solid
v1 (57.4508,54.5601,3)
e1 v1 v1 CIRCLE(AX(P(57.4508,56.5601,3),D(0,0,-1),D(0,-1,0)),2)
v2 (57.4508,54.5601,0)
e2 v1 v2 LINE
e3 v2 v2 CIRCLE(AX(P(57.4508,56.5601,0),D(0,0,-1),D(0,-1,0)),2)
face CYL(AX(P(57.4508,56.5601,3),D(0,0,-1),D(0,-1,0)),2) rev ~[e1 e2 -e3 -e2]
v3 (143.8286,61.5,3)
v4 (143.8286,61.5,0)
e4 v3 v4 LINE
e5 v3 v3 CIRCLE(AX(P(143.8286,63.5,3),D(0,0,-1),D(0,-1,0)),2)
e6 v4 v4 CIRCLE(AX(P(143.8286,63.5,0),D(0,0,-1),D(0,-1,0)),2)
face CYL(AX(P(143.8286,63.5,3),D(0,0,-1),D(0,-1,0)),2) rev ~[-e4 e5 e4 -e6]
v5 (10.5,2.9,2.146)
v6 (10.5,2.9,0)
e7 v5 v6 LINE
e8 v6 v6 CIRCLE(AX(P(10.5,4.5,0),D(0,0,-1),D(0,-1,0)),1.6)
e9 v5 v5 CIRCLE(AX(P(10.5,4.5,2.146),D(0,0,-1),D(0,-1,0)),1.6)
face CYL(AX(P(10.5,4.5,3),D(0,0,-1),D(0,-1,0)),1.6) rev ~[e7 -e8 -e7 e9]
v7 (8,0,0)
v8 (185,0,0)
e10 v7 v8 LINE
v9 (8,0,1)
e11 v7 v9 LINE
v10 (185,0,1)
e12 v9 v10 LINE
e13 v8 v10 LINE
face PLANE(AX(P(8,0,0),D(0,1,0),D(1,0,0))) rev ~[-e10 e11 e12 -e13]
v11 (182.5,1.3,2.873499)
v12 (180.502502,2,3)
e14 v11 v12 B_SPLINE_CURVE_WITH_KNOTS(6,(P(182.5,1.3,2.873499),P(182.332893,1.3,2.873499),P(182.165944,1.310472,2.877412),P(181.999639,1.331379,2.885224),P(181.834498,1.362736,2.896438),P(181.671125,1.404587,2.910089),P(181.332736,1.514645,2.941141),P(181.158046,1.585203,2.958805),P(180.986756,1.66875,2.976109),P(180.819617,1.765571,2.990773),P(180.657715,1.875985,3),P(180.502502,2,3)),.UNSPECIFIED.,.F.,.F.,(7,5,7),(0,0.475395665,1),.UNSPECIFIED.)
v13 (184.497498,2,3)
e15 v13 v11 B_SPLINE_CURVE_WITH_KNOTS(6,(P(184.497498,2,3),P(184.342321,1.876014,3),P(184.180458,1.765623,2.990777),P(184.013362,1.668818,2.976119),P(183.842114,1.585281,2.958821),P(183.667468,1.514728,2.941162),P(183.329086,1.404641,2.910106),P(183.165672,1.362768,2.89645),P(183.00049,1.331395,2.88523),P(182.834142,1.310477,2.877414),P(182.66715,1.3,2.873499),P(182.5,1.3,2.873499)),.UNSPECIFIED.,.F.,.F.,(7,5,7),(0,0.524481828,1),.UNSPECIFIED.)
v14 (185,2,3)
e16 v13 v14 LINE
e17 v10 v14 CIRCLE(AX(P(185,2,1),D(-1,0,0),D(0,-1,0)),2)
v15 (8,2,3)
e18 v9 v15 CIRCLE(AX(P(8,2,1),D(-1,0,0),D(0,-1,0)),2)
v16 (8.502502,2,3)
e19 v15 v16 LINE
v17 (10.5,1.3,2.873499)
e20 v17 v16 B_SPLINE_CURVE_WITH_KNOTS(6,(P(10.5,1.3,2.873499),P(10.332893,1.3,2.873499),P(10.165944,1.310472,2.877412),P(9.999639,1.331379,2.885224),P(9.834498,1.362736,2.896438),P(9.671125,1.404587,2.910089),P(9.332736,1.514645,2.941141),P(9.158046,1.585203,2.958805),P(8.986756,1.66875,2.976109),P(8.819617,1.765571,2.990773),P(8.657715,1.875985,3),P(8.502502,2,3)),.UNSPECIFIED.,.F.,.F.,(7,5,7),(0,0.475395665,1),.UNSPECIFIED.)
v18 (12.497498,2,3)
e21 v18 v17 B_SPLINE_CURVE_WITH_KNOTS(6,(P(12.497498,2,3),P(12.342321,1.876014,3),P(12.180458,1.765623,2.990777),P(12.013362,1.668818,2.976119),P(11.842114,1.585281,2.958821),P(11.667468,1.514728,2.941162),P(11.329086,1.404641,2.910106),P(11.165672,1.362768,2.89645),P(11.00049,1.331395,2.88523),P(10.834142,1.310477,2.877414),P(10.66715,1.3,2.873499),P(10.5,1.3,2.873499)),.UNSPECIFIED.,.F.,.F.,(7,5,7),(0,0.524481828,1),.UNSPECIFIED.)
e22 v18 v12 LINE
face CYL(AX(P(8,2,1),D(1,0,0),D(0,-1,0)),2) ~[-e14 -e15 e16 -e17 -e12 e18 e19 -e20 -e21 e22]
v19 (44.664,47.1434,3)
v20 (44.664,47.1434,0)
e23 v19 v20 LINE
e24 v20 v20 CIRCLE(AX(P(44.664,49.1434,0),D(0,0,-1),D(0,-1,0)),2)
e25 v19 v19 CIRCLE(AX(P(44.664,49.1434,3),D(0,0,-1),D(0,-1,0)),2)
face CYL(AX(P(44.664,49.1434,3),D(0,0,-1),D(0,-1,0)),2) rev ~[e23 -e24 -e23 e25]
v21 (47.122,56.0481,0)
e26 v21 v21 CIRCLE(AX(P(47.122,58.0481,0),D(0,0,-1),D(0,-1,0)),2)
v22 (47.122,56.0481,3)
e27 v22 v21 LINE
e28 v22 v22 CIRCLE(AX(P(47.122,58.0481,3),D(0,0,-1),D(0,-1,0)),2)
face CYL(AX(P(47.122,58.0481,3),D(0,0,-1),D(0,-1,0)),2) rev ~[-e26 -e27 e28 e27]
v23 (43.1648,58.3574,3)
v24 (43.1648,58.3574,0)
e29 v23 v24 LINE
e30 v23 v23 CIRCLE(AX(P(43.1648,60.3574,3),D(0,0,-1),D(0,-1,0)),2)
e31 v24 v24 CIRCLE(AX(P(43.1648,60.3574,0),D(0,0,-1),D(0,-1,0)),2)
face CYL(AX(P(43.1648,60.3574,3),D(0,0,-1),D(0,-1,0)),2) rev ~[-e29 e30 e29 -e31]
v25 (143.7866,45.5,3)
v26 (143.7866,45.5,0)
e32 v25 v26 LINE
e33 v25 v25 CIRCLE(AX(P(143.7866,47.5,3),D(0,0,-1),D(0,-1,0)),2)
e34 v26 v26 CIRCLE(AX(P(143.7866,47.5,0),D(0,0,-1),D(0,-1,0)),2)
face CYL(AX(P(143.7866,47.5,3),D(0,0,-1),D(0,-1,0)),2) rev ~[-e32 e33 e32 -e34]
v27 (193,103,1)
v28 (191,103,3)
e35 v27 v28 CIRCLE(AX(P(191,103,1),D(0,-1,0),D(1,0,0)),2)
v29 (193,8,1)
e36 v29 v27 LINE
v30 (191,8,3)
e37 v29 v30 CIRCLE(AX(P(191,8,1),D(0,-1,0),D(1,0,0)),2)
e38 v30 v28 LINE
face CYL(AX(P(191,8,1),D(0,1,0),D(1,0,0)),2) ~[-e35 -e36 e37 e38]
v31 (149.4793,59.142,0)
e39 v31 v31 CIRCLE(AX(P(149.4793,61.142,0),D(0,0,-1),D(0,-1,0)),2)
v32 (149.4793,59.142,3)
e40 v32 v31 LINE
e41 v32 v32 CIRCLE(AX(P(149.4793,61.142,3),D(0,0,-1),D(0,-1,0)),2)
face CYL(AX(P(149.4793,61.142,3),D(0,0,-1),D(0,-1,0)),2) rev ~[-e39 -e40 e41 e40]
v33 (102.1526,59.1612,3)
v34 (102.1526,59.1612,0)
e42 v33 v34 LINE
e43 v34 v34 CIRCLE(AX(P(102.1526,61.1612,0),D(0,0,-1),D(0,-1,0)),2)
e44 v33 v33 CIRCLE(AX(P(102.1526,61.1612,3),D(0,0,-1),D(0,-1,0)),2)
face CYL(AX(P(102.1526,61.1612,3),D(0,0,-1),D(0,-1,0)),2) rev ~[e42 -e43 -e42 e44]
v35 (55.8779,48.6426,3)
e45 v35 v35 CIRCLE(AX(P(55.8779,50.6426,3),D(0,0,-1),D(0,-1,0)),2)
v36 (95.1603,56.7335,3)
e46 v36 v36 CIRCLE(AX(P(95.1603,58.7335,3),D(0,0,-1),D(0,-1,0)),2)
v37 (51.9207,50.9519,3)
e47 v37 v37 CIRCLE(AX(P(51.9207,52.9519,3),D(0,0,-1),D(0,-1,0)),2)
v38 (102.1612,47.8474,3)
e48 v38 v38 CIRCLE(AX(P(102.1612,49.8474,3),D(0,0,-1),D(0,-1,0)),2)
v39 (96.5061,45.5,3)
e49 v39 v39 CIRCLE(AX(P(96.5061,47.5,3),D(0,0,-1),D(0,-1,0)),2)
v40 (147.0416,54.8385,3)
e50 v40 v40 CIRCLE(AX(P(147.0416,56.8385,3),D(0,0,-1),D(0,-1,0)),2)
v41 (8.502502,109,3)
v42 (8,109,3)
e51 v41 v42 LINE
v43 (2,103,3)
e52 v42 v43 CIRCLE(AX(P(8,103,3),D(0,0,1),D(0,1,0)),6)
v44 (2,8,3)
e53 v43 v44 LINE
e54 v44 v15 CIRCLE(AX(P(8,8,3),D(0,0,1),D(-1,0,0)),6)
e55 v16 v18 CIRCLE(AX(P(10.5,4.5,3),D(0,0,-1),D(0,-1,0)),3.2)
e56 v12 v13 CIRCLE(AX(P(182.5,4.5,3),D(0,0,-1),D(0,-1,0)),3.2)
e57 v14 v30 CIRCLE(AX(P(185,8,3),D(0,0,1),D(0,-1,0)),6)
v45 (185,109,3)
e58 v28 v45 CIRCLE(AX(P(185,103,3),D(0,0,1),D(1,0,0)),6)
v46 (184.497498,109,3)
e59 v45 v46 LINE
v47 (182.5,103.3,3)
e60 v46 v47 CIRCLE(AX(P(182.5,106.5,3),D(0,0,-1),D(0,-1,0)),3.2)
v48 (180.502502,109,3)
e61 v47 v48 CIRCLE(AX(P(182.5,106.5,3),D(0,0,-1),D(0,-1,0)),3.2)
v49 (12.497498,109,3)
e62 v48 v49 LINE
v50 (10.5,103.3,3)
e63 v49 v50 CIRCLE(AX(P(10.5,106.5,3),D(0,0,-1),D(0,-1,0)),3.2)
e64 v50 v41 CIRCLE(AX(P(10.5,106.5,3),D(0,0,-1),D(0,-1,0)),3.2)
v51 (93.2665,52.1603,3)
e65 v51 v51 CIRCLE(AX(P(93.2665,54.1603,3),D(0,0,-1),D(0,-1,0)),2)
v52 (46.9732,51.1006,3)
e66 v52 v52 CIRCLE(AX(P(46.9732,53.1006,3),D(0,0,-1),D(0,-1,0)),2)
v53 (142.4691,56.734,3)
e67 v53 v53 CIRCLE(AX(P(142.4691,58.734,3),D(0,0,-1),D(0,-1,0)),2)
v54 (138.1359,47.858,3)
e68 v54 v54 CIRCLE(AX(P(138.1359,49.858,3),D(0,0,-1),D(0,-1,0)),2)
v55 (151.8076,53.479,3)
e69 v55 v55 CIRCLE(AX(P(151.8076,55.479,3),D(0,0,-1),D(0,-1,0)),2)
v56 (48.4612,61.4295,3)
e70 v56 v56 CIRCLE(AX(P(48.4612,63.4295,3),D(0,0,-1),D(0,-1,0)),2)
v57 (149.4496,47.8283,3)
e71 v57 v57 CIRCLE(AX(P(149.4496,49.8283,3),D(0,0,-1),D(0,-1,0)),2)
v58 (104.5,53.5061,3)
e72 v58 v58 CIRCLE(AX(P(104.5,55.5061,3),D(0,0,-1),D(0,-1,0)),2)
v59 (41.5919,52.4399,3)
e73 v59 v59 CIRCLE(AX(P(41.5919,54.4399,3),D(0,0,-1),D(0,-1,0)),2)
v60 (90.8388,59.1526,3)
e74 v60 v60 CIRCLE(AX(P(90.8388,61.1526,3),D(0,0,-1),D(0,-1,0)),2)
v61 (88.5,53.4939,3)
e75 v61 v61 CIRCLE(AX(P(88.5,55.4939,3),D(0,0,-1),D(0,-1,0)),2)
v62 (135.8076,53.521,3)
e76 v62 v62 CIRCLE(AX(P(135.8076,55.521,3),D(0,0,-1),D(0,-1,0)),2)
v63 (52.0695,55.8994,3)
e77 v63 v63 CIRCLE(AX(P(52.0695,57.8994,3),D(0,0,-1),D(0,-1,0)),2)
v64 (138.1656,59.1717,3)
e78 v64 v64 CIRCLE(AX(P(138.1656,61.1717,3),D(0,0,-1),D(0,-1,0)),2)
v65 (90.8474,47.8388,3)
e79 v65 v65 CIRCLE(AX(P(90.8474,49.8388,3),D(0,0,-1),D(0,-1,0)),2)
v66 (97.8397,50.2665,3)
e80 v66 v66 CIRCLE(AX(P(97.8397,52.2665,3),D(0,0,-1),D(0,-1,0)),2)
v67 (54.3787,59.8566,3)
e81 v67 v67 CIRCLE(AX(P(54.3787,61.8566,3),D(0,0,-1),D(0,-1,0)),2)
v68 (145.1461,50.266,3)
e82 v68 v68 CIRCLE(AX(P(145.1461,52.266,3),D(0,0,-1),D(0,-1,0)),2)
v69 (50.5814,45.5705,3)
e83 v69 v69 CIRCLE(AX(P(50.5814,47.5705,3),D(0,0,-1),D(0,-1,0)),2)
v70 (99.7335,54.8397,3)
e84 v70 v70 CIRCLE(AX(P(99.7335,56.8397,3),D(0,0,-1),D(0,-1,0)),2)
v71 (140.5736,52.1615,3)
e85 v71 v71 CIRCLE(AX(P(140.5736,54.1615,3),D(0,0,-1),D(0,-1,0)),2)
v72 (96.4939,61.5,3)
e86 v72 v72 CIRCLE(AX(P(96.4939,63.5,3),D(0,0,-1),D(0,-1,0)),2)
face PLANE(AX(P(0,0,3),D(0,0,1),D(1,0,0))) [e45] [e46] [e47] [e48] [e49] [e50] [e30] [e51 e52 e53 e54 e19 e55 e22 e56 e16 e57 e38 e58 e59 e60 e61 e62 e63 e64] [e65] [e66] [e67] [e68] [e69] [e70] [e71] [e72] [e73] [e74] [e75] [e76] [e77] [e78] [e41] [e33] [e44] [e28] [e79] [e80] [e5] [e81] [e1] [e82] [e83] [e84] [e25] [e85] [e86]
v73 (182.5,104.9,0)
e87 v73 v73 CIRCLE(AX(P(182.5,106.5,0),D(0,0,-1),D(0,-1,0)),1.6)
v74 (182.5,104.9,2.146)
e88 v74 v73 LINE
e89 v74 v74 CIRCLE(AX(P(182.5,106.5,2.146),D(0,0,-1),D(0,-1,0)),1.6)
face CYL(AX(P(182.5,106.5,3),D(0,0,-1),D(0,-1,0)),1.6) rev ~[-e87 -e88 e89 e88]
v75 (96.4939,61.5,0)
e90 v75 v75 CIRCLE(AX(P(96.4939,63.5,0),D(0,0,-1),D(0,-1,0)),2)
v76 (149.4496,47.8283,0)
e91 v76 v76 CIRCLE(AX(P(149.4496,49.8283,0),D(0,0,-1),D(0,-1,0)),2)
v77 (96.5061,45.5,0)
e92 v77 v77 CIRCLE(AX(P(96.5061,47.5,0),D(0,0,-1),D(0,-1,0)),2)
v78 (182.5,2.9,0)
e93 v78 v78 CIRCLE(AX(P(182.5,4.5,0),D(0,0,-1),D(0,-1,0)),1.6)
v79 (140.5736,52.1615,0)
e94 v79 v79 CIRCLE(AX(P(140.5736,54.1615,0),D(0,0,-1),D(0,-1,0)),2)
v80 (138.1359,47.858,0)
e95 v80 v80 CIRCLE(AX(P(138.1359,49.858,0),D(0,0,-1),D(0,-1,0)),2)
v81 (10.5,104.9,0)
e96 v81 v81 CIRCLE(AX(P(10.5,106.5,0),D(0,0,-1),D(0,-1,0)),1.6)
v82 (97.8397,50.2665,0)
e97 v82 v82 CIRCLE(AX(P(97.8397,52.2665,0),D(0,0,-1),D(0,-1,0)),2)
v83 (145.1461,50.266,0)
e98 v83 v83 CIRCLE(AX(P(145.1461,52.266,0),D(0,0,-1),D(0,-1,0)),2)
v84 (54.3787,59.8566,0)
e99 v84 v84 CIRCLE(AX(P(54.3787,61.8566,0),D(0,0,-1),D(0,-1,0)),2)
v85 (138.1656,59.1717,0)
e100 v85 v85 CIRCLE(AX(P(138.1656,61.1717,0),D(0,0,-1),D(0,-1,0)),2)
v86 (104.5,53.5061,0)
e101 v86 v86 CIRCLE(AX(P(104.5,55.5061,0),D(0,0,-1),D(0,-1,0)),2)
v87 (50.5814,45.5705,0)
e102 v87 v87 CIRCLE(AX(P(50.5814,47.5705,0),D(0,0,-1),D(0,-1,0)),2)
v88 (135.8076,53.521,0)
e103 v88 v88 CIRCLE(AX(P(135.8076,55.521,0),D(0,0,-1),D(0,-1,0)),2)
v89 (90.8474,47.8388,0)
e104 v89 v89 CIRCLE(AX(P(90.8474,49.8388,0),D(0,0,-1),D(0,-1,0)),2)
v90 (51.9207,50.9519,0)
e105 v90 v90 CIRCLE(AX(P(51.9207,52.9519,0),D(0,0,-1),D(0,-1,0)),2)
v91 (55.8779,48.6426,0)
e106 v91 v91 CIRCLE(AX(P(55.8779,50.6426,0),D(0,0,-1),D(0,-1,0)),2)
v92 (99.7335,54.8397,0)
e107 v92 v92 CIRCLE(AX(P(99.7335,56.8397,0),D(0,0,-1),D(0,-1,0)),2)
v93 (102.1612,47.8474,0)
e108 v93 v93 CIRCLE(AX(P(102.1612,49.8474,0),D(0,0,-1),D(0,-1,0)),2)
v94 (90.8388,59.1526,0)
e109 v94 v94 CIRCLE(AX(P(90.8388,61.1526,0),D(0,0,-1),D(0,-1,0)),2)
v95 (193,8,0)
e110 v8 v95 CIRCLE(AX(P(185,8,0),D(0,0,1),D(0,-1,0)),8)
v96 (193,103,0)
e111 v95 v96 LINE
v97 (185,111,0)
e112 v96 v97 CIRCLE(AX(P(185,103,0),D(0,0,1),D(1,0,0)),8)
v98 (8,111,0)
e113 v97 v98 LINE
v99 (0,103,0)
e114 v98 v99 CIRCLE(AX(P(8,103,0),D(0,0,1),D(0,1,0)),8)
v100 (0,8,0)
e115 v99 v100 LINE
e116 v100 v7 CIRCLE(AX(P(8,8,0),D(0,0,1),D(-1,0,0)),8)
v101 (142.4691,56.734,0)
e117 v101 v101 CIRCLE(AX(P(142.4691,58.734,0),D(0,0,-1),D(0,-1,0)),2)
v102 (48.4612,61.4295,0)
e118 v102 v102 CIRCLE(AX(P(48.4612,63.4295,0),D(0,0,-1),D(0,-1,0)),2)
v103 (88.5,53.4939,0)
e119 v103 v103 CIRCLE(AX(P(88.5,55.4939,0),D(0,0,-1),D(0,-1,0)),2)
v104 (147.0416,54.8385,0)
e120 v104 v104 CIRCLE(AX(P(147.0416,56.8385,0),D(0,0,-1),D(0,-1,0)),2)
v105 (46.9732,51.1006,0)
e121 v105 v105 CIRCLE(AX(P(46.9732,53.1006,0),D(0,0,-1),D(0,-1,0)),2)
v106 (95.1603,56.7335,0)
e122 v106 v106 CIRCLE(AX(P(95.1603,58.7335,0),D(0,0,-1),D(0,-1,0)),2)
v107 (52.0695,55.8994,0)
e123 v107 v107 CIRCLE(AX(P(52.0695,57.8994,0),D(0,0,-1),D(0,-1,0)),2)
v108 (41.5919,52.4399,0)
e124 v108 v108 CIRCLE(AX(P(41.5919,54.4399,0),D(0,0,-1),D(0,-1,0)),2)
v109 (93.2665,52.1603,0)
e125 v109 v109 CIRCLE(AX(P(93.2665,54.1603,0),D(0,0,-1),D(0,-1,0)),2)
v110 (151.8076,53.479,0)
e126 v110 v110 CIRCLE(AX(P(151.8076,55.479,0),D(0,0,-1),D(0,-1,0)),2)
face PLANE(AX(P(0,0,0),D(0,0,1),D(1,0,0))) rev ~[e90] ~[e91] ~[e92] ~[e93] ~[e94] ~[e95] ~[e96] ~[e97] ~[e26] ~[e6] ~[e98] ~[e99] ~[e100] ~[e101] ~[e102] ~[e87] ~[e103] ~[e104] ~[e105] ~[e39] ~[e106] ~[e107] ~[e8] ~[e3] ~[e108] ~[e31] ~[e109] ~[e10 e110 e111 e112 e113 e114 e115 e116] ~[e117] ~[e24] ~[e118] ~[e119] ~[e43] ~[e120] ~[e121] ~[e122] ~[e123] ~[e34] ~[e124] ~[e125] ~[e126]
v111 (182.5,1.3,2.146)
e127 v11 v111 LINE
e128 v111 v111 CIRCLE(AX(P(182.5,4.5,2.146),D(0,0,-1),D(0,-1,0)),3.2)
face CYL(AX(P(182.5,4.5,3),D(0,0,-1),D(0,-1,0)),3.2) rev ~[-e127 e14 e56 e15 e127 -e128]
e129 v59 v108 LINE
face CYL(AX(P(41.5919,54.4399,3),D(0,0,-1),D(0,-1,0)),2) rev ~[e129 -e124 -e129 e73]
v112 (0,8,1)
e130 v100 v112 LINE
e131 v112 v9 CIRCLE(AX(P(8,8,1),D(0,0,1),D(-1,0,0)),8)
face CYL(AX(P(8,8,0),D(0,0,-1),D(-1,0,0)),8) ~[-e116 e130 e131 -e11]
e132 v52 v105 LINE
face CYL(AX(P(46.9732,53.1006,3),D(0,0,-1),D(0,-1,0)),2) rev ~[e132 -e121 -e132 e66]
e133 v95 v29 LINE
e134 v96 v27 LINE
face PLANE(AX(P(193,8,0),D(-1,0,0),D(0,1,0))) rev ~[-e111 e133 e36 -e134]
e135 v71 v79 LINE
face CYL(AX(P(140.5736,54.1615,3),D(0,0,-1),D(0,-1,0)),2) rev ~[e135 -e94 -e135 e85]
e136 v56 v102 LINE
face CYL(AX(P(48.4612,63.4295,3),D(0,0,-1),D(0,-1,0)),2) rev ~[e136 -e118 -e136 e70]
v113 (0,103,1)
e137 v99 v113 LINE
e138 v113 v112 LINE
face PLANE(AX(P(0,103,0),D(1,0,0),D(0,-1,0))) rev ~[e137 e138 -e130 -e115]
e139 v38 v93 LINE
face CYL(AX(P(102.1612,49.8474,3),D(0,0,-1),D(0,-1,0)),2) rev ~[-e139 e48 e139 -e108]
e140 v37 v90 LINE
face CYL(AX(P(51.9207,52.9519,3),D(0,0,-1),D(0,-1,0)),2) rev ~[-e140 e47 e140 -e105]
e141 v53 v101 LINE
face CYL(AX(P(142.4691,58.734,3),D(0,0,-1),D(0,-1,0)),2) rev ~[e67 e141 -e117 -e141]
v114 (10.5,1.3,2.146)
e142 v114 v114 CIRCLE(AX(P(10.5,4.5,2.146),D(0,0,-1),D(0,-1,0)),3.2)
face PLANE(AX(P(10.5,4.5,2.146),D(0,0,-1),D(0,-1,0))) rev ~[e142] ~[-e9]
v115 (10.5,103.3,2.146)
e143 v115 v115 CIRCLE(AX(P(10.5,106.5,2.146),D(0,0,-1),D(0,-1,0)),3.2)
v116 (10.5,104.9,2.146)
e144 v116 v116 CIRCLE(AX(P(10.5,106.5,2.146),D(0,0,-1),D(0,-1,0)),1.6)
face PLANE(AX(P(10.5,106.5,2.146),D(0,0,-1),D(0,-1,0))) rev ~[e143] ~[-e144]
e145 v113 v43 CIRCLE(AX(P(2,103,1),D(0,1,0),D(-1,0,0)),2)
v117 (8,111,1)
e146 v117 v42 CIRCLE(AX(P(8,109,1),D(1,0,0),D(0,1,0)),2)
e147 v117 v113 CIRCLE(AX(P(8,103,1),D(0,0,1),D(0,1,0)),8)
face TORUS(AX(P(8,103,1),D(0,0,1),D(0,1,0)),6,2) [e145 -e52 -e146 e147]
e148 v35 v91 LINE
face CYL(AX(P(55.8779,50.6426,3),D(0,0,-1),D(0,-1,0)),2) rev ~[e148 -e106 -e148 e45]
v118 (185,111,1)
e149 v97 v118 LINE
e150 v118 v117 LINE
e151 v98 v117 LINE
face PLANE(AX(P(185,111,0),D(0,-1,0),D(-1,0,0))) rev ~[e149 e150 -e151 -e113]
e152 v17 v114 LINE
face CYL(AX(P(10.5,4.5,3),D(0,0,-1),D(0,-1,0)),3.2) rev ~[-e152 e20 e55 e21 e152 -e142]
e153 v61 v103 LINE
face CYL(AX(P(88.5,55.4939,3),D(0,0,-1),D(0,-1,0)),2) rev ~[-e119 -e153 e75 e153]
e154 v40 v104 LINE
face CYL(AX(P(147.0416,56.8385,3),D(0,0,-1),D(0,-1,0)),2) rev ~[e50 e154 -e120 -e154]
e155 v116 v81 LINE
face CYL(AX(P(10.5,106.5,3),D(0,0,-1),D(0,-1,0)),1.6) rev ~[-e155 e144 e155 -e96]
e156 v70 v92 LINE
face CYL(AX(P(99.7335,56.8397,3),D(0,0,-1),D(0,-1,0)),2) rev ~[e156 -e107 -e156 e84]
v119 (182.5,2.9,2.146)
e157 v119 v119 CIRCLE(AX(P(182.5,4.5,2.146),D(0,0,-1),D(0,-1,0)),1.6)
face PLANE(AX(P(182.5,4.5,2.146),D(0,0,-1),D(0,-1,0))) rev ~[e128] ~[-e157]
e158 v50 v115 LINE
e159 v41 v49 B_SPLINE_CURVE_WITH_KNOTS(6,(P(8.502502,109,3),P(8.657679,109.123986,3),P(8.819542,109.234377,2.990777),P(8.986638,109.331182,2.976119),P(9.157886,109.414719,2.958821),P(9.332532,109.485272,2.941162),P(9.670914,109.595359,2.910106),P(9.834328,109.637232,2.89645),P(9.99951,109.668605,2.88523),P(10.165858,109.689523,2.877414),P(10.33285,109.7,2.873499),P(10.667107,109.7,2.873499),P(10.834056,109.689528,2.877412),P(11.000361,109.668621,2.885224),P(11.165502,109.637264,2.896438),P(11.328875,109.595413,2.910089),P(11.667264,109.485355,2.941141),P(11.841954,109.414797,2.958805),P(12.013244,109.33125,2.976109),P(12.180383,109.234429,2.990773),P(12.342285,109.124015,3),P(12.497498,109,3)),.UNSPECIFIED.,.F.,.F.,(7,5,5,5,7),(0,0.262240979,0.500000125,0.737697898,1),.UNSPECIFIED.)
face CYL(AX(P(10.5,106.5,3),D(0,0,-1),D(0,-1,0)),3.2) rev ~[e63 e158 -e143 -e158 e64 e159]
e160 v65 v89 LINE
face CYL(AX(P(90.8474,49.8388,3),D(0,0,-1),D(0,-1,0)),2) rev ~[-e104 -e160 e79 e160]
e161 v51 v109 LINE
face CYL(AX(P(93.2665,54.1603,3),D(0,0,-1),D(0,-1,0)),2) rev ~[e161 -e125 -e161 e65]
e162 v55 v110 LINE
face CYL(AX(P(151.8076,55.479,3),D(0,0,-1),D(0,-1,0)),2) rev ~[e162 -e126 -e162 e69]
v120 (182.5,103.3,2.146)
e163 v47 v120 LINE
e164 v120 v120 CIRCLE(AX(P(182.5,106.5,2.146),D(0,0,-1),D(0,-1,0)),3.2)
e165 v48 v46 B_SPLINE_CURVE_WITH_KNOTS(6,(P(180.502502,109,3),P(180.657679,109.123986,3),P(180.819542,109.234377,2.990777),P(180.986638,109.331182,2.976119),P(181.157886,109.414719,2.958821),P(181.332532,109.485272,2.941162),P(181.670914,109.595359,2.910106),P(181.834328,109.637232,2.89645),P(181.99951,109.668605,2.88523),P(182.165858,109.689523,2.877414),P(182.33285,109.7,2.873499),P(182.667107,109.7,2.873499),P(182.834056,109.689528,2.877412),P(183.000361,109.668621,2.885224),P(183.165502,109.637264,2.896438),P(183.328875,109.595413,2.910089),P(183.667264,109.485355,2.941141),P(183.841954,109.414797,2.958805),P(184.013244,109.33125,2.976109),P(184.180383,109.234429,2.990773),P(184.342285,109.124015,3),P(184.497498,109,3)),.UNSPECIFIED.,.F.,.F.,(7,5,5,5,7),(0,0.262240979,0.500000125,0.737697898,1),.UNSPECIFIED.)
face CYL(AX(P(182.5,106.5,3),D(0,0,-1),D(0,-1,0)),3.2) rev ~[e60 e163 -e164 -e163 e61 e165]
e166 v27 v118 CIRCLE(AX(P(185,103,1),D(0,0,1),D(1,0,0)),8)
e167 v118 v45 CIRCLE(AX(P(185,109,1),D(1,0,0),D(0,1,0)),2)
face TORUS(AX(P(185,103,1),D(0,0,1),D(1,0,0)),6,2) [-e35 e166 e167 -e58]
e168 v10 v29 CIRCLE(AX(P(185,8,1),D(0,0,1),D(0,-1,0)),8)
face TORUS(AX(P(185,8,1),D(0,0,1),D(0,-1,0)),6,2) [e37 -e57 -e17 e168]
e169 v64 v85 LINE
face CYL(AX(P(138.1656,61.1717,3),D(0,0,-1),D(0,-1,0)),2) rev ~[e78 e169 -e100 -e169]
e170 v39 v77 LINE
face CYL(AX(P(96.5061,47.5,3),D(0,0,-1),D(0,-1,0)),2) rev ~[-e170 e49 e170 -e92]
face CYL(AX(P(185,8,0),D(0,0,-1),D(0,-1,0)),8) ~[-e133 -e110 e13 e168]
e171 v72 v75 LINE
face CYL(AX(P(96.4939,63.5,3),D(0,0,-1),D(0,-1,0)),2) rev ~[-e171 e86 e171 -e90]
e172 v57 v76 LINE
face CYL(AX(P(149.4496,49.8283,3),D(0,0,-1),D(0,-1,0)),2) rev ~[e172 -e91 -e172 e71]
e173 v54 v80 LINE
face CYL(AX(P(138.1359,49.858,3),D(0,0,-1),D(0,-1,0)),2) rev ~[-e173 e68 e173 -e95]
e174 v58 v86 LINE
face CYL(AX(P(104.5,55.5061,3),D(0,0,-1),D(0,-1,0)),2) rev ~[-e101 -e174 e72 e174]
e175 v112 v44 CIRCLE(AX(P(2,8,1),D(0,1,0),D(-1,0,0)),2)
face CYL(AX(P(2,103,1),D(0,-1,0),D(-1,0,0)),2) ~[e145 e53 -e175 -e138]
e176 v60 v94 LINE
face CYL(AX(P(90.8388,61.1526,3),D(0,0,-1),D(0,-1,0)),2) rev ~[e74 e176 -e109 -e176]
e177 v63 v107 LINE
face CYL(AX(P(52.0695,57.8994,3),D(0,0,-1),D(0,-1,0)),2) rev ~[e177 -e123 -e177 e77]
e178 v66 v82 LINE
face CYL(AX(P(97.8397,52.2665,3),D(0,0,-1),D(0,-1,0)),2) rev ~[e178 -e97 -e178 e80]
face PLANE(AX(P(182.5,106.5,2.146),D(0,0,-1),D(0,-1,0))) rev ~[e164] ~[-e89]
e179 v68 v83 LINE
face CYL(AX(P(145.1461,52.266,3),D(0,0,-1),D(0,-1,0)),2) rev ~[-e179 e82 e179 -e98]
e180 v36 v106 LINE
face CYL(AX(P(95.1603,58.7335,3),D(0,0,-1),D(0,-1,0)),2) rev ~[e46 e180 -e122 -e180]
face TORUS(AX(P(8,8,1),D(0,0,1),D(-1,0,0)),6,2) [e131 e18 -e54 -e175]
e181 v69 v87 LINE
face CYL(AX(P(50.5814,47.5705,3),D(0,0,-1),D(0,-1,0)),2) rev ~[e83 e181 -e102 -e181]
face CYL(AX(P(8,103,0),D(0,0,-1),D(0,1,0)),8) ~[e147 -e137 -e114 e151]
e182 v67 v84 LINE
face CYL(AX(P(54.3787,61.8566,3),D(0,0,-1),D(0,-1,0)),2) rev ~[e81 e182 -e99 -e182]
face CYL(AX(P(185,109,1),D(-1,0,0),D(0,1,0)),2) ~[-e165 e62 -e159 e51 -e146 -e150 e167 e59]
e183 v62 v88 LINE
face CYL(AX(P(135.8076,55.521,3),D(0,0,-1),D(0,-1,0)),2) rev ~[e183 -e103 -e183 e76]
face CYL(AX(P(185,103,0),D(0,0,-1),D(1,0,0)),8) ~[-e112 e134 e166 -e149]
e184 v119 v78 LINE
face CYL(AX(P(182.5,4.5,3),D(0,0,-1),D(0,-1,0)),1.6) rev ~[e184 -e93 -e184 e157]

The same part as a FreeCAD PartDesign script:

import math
import FreeCAD as App
import Part
import Sketcher
Q = App.Units.Quantity


def edges_at(feature, points):
    """Names of the edges that pass closest to the given points."""
    edges = feature.Shape.Edges
    near = lambda p: min(range(len(edges)), key=lambda i: edges[i].distToShape(Part.Vertex(*p))[0])
    return sorted({f"Edge{near(p) + 1}" for p in points})

doc = App.newDocument("Part")
body = doc.addObject("PartDesign::Body", "Body")

sketch1 = body.newObject("Sketcher::SketchObject", "Sketch")
sketch1.AttachmentSupport = (doc.getObject("XY_Plane"), [""])
sketch1.MapMode = "FlatFace"
sketch1.addGeometry(Part.ArcOfCircle(Part.Circle(App.Vector(8, 8, 0), App.Vector(0, 0, 1), 8), math.radians(180), math.radians(270)), False)
sketch1.addGeometry(Part.LineSegment(App.Vector(8, 0, 0), App.Vector(185, 0, 0)), False)
sketch1.addGeometry(Part.ArcOfCircle(Part.Circle(App.Vector(185, 8, 0), App.Vector(0, 0, 1), 8), math.radians(-90), math.radians(0)), False)
sketch1.addGeometry(Part.LineSegment(App.Vector(193, 8, 0), App.Vector(193, 103, 0)), False)
sketch1.addGeometry(Part.ArcOfCircle(Part.Circle(App.Vector(185, 103, 0), App.Vector(0, 0, 1), 8), math.radians(0), math.radians(90)), False)
sketch1.addGeometry(Part.LineSegment(App.Vector(185, 111, 0), App.Vector(8, 111, 0)), False)
sketch1.addGeometry(Part.ArcOfCircle(Part.Circle(App.Vector(8, 103, 0), App.Vector(0, 0, 1), 8), math.radians(90), math.radians(180)), False)
sketch1.addGeometry(Part.LineSegment(App.Vector(0, 103, 0), App.Vector(0, 8, 0)), False)
sketch1.addConstraint(Sketcher.Constraint("Tangent", 0, 2, 1, 1))
sketch1.addConstraint(Sketcher.Constraint("Tangent", 1, 2, 2, 1))
sketch1.addConstraint(Sketcher.Constraint("Tangent", 2, 2, 3, 1))
sketch1.addConstraint(Sketcher.Constraint("Tangent", 3, 2, 4, 1))
sketch1.addConstraint(Sketcher.Constraint("Tangent", 4, 2, 5, 1))
sketch1.addConstraint(Sketcher.Constraint("Tangent", 5, 2, 6, 1))
sketch1.addConstraint(Sketcher.Constraint("Tangent", 6, 2, 7, 1))
sketch1.addConstraint(Sketcher.Constraint("Tangent", 7, 2, 0, 1))
sketch1.addConstraint(Sketcher.Constraint("Horizontal", 1))
sketch1.addConstraint(Sketcher.Constraint("Vertical", 3))
sketch1.addConstraint(Sketcher.Constraint("Horizontal", 5))
sketch1.addConstraint(Sketcher.Constraint("Vertical", 7))
sketch1.addConstraint(Sketcher.Constraint("Equal", 0, 2))
sketch1.addConstraint(Sketcher.Constraint("Equal", 2, 4))
sketch1.addConstraint(Sketcher.Constraint("Equal", 4, 6))
sketch1.addConstraint(Sketcher.Constraint("PointOnObject", 0, 2, -1))
sketch1.addConstraint(Sketcher.Constraint("PointOnObject", 6, 2, -2))
sketch1.addConstraint(Sketcher.Constraint("Radius", 0, Q("8 mm")))
sketch1.addConstraint(Sketcher.Constraint("DistanceX", -1, 1, 2, 2, Q("193 mm")))
sketch1.addConstraint(Sketcher.Constraint("DistanceY", -1, 1, 4, 2, Q("111 mm")))
pad1 = body.newObject("PartDesign::Pad", "Pad")
pad1.Profile = sketch1
pad1.Length = 3
doc.recompute()

fillet = body.newObject("PartDesign::Fillet", "Fillet")
fillet.Base = (pad1, edges_at(pad1, [
    (193, 55.5, 3),
    (190.657, 108.657, 3),
    (96.5, 111, 3),
    (2.343, 108.657, 3),
    (0, 55.5, 3),
    (2.343, 2.343, 3),
    (96.5, 0, 3),
    (190.657, 2.343, 3),
]))
fillet.Radius = 2

sketch2 = body.newObject("Sketcher::SketchObject", "Sketch001")
sketch2.AttachmentSupport = (doc.getObject("XY_Plane"), [""])
sketch2.MapMode = "FlatFace"
sketch2.AttachmentOffset = App.Placement(App.Vector(0, 0, 3), App.Rotation())
sketch2.addGeometry(Part.Circle(App.Vector(10.5, 4.5, 0), App.Vector(0, 0, 1), 1.6), False)
sketch2.addGeometry(Part.Circle(App.Vector(10.5, 106.5, 0), App.Vector(0, 0, 1), 1.6), False)
sketch2.addGeometry(Part.Circle(App.Vector(182.5, 106.5, 0), App.Vector(0, 0, 1), 1.6), False)
sketch2.addGeometry(Part.Circle(App.Vector(182.5, 4.5, 0), App.Vector(0, 0, 1), 1.6), False)
sketch2.addConstraint(Sketcher.Constraint("Equal", 0, 1))
sketch2.addConstraint(Sketcher.Constraint("Equal", 1, 2))
sketch2.addConstraint(Sketcher.Constraint("Equal", 2, 3))
sketch2.addConstraint(Sketcher.Constraint("Horizontal", 1, 3, 2, 3))
sketch2.addConstraint(Sketcher.Constraint("Horizontal", 0, 3, 3, 3))
sketch2.addConstraint(Sketcher.Constraint("Vertical", 0, 3, 1, 3))
sketch2.addConstraint(Sketcher.Constraint("Vertical", 2, 3, 3, 3))
sketch2.addConstraint(Sketcher.Constraint("Diameter", 0, Q("3.2 mm")))
sketch2.addConstraint(Sketcher.Constraint("DistanceY", 0, 3, 1, 3, Q("102 mm")))
sketch2.addConstraint(Sketcher.Constraint("DistanceX", 1, 3, 2, 3, Q("172 mm")))
sketch2.addConstraint(Sketcher.Constraint("DistanceX", -1, 1, 0, 3, Q("10.5 mm")))
sketch2.addConstraint(Sketcher.Constraint("DistanceY", -1, 1, 0, 3, Q("4.5 mm")))
doc.recompute()
hole = body.newObject("PartDesign::Hole", "Hole")
hole.Profile = sketch2
hole.ThreadType = "None"
hole.Diameter = 3.2
hole.DepthType = "Dimension"
hole.Depth = 7
hole.DrillPoint = "Flat"

sketch3 = body.newObject("Sketcher::SketchObject", "Sketch002")
sketch3.AttachmentSupport = (doc.getObject("XY_Plane"), [""])
sketch3.MapMode = "FlatFace"
sketch3.AttachmentOffset = App.Placement(App.Vector(0, 0, 3), App.Rotation())
sketch3.addGeometry(Part.Circle(App.Vector(182.5, 4.5, 0), App.Vector(0, 0, 1), 3.2), False)
sketch3.addGeometry(Part.Circle(App.Vector(10.5, 4.5, 0), App.Vector(0, 0, 1), 3.2), False)
sketch3.addGeometry(Part.Circle(App.Vector(182.5, 106.5, 0), App.Vector(0, 0, 1), 3.2), False)
sketch3.addGeometry(Part.Circle(App.Vector(10.5, 106.5, 0), App.Vector(0, 0, 1), 3.2), False)
sketch3.addConstraint(Sketcher.Constraint("Equal", 0, 1))
sketch3.addConstraint(Sketcher.Constraint("Equal", 1, 2))
sketch3.addConstraint(Sketcher.Constraint("Equal", 2, 3))
sketch3.addConstraint(Sketcher.Constraint("Horizontal", 0, 3, 1, 3))
sketch3.addConstraint(Sketcher.Constraint("Horizontal", 2, 3, 3, 3))
sketch3.addConstraint(Sketcher.Constraint("Vertical", 0, 3, 2, 3))
sketch3.addConstraint(Sketcher.Constraint("Vertical", 1, 3, 3, 3))
sketch3.addConstraint(Sketcher.Constraint("Diameter", 0, Q("6.4 mm")))
sketch3.addConstraint(Sketcher.Constraint("DistanceX", 1, 3, 0, 3, Q("172 mm")))
sketch3.addConstraint(Sketcher.Constraint("DistanceY", 0, 3, 2, 3, Q("102 mm")))
sketch3.addConstraint(Sketcher.Constraint("DistanceX", -1, 1, 0, 3, Q("182.5 mm")))
sketch3.addConstraint(Sketcher.Constraint("DistanceY", -1, 1, 0, 3, Q("4.5 mm")))
doc.recompute()
hole2 = body.newObject("PartDesign::Hole", "Hole001")
hole2.Profile = sketch3
hole2.ThreadType = "None"
hole2.Diameter = 6.4
hole2.DepthType = "Dimension"
hole2.Depth = 0.854
hole2.DrillPoint = "Flat"

sketch4 = body.newObject("Sketcher::SketchObject", "Sketch003")
sketch4.AttachmentSupport = (doc.getObject("XY_Plane"), [""])
sketch4.MapMode = "FlatFace"
sketch4.AttachmentOffset = App.Placement(App.Vector(0, 0, 3), App.Rotation())
sketch4.addGeometry(Part.Circle(App.Vector(52.1, 57.9, 0), App.Vector(0, 0, 1), 2), False)
sketch4.addGeometry(Part.Circle(App.Vector(47.1, 58, 0), App.Vector(0, 0, 1), 2), False)
sketch4.addGeometry(Part.Circle(App.Vector(48.5, 63.4, 0), App.Vector(0, 0, 1), 2), False)
sketch4.addGeometry(Part.Circle(App.Vector(43.2, 60.4, 0), App.Vector(0, 0, 1), 2), False)
sketch4.addGeometry(Part.Circle(App.Vector(41.6, 54.4, 0), App.Vector(0, 0, 1), 2), False)
sketch4.addGeometry(Part.Circle(App.Vector(47, 53.1, 0), App.Vector(0, 0, 1), 2), False)
sketch4.addGeometry(Part.Circle(App.Vector(44.7, 49.1, 0), App.Vector(0, 0, 1), 2), False)
sketch4.addGeometry(Part.Circle(App.Vector(55.9, 50.6, 0), App.Vector(0, 0, 1), 2), False)
sketch4.addGeometry(Part.Circle(App.Vector(51.9, 53, 0), App.Vector(0, 0, 1), 2), False)
sketch4.addGeometry(Part.Circle(App.Vector(50.6, 47.6, 0), App.Vector(0, 0, 1), 2), False)
sketch4.addGeometry(Part.Circle(App.Vector(57.5, 56.6, 0), App.Vector(0, 0, 1), 2), False)
sketch4.addGeometry(Part.Circle(App.Vector(54.4, 61.9, 0), App.Vector(0, 0, 1), 2), False)
sketch4.addGeometry(Part.Circle(App.Vector(96.5, 63.5, 0), App.Vector(0, 0, 1), 2), False)
sketch4.addGeometry(Part.Circle(App.Vector(90.8, 61.2, 0), App.Vector(0, 0, 1), 2), False)
sketch4.addGeometry(Part.Circle(App.Vector(88.5, 55.5, 0), App.Vector(0, 0, 1), 2), False)
sketch4.addGeometry(Part.Circle(App.Vector(95.2, 58.7, 0), App.Vector(0, 0, 1), 2), False)
sketch4.addGeometry(Part.Circle(App.Vector(93.3, 54.2, 0), App.Vector(0, 0, 1), 2), False)
sketch4.addGeometry(Part.Circle(App.Vector(97.8, 52.3, 0), App.Vector(0, 0, 1), 2), False)
sketch4.addGeometry(Part.Circle(App.Vector(90.8, 49.8, 0), App.Vector(0, 0, 1), 2), False)
sketch4.addGeometry(Part.Circle(App.Vector(96.5, 47.5, 0), App.Vector(0, 0, 1), 2), False)
sketch4.addGeometry(Part.Circle(App.Vector(102.2, 49.8, 0), App.Vector(0, 0, 1), 2), False)
sketch4.addGeometry(Part.Circle(App.Vector(102.2, 61.2, 0), App.Vector(0, 0, 1), 2), False)
sketch4.addGeometry(Part.Circle(App.Vector(104.5, 55.5, 0), App.Vector(0, 0, 1), 2), False)
sketch4.addGeometry(Part.Circle(App.Vector(99.7, 56.8, 0), App.Vector(0, 0, 1), 2), False)
sketch4.addGeometry(Part.Circle(App.Vector(142.5, 58.7, 0), App.Vector(0, 0, 1), 2), False)
sketch4.addGeometry(Part.Circle(App.Vector(138.2, 61.2, 0), App.Vector(0, 0, 1), 2), False)
sketch4.addGeometry(Part.Circle(App.Vector(143.8, 63.5, 0), App.Vector(0, 0, 1), 2), False)
sketch4.addGeometry(Part.Circle(App.Vector(149.5, 61.1, 0), App.Vector(0, 0, 1), 2), False)
sketch4.addGeometry(Part.Circle(App.Vector(147, 56.8, 0), App.Vector(0, 0, 1), 2), False)
sketch4.addGeometry(Part.Circle(App.Vector(149.4, 49.8, 0), App.Vector(0, 0, 1), 2), False)
sketch4.addGeometry(Part.Circle(App.Vector(145.1, 52.3, 0), App.Vector(0, 0, 1), 2), False)
sketch4.addGeometry(Part.Circle(App.Vector(151.8, 55.5, 0), App.Vector(0, 0, 1), 2), False)
sketch4.addGeometry(Part.Circle(App.Vector(143.8, 47.5, 0), App.Vector(0, 0, 1), 2), False)
sketch4.addGeometry(Part.Circle(App.Vector(138.1, 49.9, 0), App.Vector(0, 0, 1), 2), False)
sketch4.addGeometry(Part.Circle(App.Vector(140.6, 54.2, 0), App.Vector(0, 0, 1), 2), False)
sketch4.addGeometry(Part.Circle(App.Vector(135.8, 55.5, 0), App.Vector(0, 0, 1), 2), False)
sketch4.addConstraint(Sketcher.Constraint("Equal", 0, 1))
sketch4.addConstraint(Sketcher.Constraint("Equal", 1, 2))
sketch4.addConstraint(Sketcher.Constraint("Equal", 2, 3))
sketch4.addConstraint(Sketcher.Constraint("Equal", 3, 4))
sketch4.addConstraint(Sketcher.Constraint("Equal", 4, 5))
sketch4.addConstraint(Sketcher.Constraint("Equal", 5, 6))
sketch4.addConstraint(Sketcher.Constraint("Equal", 6, 7))
sketch4.addConstraint(Sketcher.Constraint("Equal", 7, 8))
sketch4.addConstraint(Sketcher.Constraint("Equal", 8, 9))
sketch4.addConstraint(Sketcher.Constraint("Equal", 9, 10))
sketch4.addConstraint(Sketcher.Constraint("Equal", 10, 11))
sketch4.addConstraint(Sketcher.Constraint("Equal", 11, 12))
sketch4.addConstraint(Sketcher.Constraint("Equal", 12, 13))
sketch4.addConstraint(Sketcher.Constraint("Equal", 13, 14))
sketch4.addConstraint(Sketcher.Constraint("Equal", 14, 15))
sketch4.addConstraint(Sketcher.Constraint("Equal", 15, 16))
sketch4.addConstraint(Sketcher.Constraint("Equal", 16, 17))
sketch4.addConstraint(Sketcher.Constraint("Equal", 17, 18))
sketch4.addConstraint(Sketcher.Constraint("Equal", 18, 19))
sketch4.addConstraint(Sketcher.Constraint("Equal", 19, 20))
sketch4.addConstraint(Sketcher.Constraint("Equal", 20, 21))
sketch4.addConstraint(Sketcher.Constraint("Equal", 21, 22))
sketch4.addConstraint(Sketcher.Constraint("Equal", 22, 23))
sketch4.addConstraint(Sketcher.Constraint("Equal", 23, 24))
sketch4.addConstraint(Sketcher.Constraint("Equal", 24, 25))
sketch4.addConstraint(Sketcher.Constraint("Equal", 25, 26))
sketch4.addConstraint(Sketcher.Constraint("Equal", 26, 27))
sketch4.addConstraint(Sketcher.Constraint("Equal", 27, 28))
sketch4.addConstraint(Sketcher.Constraint("Equal", 28, 29))
sketch4.addConstraint(Sketcher.Constraint("Equal", 29, 30))
sketch4.addConstraint(Sketcher.Constraint("Equal", 30, 31))
sketch4.addConstraint(Sketcher.Constraint("Equal", 31, 32))
sketch4.addConstraint(Sketcher.Constraint("Equal", 32, 33))
sketch4.addConstraint(Sketcher.Constraint("Equal", 33, 34))
sketch4.addConstraint(Sketcher.Constraint("Equal", 34, 35))
sketch4.addConstraint(Sketcher.Constraint("Horizontal", 12, 3, 26, 3))
sketch4.addConstraint(Sketcher.Constraint("Horizontal", 19, 3, 32, 3))
sketch4.addConstraint(Sketcher.Constraint("Diameter", 0, Q("4 mm")))
sketch4.addConstraint(Sketcher.Constraint("DistanceY", -1, 1, 12, 3, Q("63.5 mm")))
sketch4.addConstraint(Sketcher.Constraint("DistanceX", -1, 1, 14, 3, Q("88.5 mm")))
sketch4.addConstraint(Sketcher.Constraint("DistanceY", -1, 1, 19, 3, Q("47.5 mm")))
sketch4.addConstraint(Sketcher.Constraint("DistanceX", -1, 1, 22, 3, Q("104.5 mm")))
sketch4.addConstraint(Sketcher.Constraint("DistanceY", -1, 1, 4, 3, Q("54.44 mm")))
sketch4.addConstraint(Sketcher.Constraint("DistanceY", -1, 1, 10, 3, Q("56.56 mm")))
sketch4.addConstraint(Sketcher.Constraint("DistanceY", 0, 3, 2, 3, Q("5.53 mm")))
sketch4.addConstraint(Sketcher.Constraint("DistanceX", 4, 3, 1, 3, Q("5.53 mm")))
sketch4.addConstraint(Sketcher.Constraint("DistanceY", 9, 3, 5, 3, Q("5.53 mm")))
sketch4.addConstraint(Sketcher.Constraint("DistanceX", 8, 3, 10, 3, Q("5.53 mm")))
sketch4.addConstraint(Sketcher.Constraint("DistanceX", 11, 3, 13, 3, Q("36.46 mm")))
sketch4.addConstraint(Sketcher.Constraint("DistanceY", 7, 3, 13, 3, Q("10.51 mm")))
sketch4.addConstraint(Sketcher.Constraint("DistanceX", -1, 1, 1, 3, Q("47.122 mm")))
sketch4.addConstraint(Sketcher.Constraint("DistanceY", -1, 1, 1, 3, Q("58.048 mm")))
sketch4.addConstraint(Sketcher.Constraint("DistanceX", -1, 1, 6, 3, Q("44.664 mm")))
sketch4.addConstraint(Sketcher.Constraint("DistanceX", -1, 1, 7, 3, Q("55.878 mm")))
sketch4.addConstraint(Sketcher.Constraint("DistanceY", -1, 1, 8, 3, Q("52.952 mm")))
sketch4.addConstraint(Sketcher.Constraint("DistanceX", -1, 1, 12, 3, Q("96.494 mm")))
sketch4.addConstraint(Sketcher.Constraint("DistanceY", -1, 1, 14, 3, Q("55.494 mm")))
sketch4.addConstraint(Sketcher.Constraint("DistanceX", -1, 1, 19, 3, Q("96.506 mm")))
sketch4.addConstraint(Sketcher.Constraint("DistanceY", -1, 1, 22, 3, Q("55.506 mm")))
sketch4.addConstraint(Sketcher.Constraint("DistanceX", -1, 1, 24, 3, Q("142.469 mm")))
sketch4.addConstraint(Sketcher.Constraint("DistanceY", -1, 1, 24, 3, Q("58.734 mm")))
sketch4.addConstraint(Sketcher.Constraint("DistanceY", -1, 1, 27, 3, Q("61.142 mm")))
sketch4.addConstraint(Sketcher.Constraint("DistanceX", -1, 1, 30, 3, Q("145.146 mm")))
sketch4.addConstraint(Sketcher.Constraint("DistanceY", -1, 1, 30, 3, Q("52.266 mm")))
sketch4.addConstraint(Sketcher.Constraint("DistanceY", -1, 1, 31, 3, Q("55.479 mm")))
sketch4.addConstraint(Sketcher.Constraint("DistanceX", -1, 1, 33, 3, Q("138.136 mm")))
sketch4.addConstraint(Sketcher.Constraint("DistanceY", -1, 1, 33, 3, Q("49.858 mm")))
sketch4.addConstraint(Sketcher.Constraint("DistanceY", -1, 1, 35, 3, Q("55.521 mm")))
sketch4.addConstraint(Sketcher.Constraint("DistanceY", 3, 3, 2, 3, Q("3.072 mm")))
sketch4.addConstraint(Sketcher.Constraint("DistanceX", 4, 3, 3, 3, Q("1.573 mm")))
sketch4.addConstraint(Sketcher.Constraint("DistanceX", 5, 3, 2, 3, Q("1.488 mm")))
sketch4.addConstraint(Sketcher.Constraint("DistanceY", 5, 3, 2, 3, Q("10.329 mm")))
sketch4.addConstraint(Sketcher.Constraint("DistanceY", 6, 3, 3, 3, Q("11.214 mm")))
sketch4.addConstraint(Sketcher.Constraint("DistanceY", 7, 3, 5, 3, Q("2.458 mm")))
sketch4.addConstraint(Sketcher.Constraint("DistanceX", 9, 3, 0, 3, Q("1.488 mm")))
sketch4.addConstraint(Sketcher.Constraint("DistanceX", 7, 3, 10, 3, Q("1.573 mm")))
sketch4.addConstraint(Sketcher.Constraint("DistanceX", 11, 3, 10, 3, Q("3.072 mm")))
sketch4.addConstraint(Sketcher.Constraint("DistanceY", 11, 3, 2, 3, Q("1.573 mm")))
sketch4.addConstraint(Sketcher.Constraint("DistanceY", 15, 3, 13, 3, Q("2.419 mm")))
sketch4.addConstraint(Sketcher.Constraint("DistanceY", 17, 3, 15, 3, Q("6.467 mm")))
sketch4.addConstraint(Sketcher.Constraint("DistanceX", 13, 3, 17, 3, Q("7.001 mm")))
sketch4.addConstraint(Sketcher.Constraint("DistanceX", 18, 3, 16, 3, Q("2.419 mm")))
sketch4.addConstraint(Sketcher.Constraint("DistanceY", 18, 3, 14, 3, Q("5.655 mm")))
sketch4.addConstraint(Sketcher.Constraint("DistanceX", 18, 3, 15, 3, Q("4.313 mm")))
sketch4.addConstraint(Sketcher.Constraint("DistanceY", 20, 3, 17, 3, Q("2.419 mm")))
sketch4.addConstraint(Sketcher.Constraint("DistanceX", 19, 3, 20, 3, Q("5.655 mm")))
sketch4.addConstraint(Sketcher.Constraint("DistanceY", 20, 3, 16, 3, Q("4.313 mm")))
sketch4.addConstraint(Sketcher.Constraint("DistanceX", 15, 3, 20, 3, Q("7.001 mm")))
sketch4.addConstraint(Sketcher.Constraint("DistanceX", 17, 3, 21, 3, Q("4.313 mm")))
sketch4.addConstraint(Sketcher.Constraint("DistanceY", 16, 3, 21, 3, Q("7.001 mm")))
sketch4.addConstraint(Sketcher.Constraint("DistanceY", 22, 3, 21, 3, Q("5.655 mm")))
sketch4.addConstraint(Sketcher.Constraint("DistanceX", 23, 3, 21, 3, Q("2.419 mm")))
sketch4.addConstraint(Sketcher.Constraint("DistanceX", 21, 3, 25, 3, Q("36.013 mm")))
sketch4.addConstraint(Sketcher.Constraint("DistanceY", 23, 3, 25, 3, Q("4.332 mm")))
sketch4.addConstraint(Sketcher.Constraint("DistanceX", 25, 3, 26, 3, Q("5.663 mm")))
sketch4.addConstraint(Sketcher.Constraint("DistanceX", 26, 3, 28, 3, Q("3.213 mm")))
sketch4.addConstraint(Sketcher.Constraint("DistanceX", 28, 3, 29, 3, Q("2.408 mm")))
sketch4.addConstraint(Sketcher.Constraint("DistanceX", 28, 3, 31, 3, Q("4.766 mm")))
sketch4.addConstraint(Sketcher.Constraint("DistanceX", 32, 3, 29, 3, Q("5.663 mm")))
sketch4.addConstraint(Sketcher.Constraint("DistanceX", 34, 3, 28, 3, Q("6.468 mm")))
sketch4.addConstraint(Sketcher.Constraint("DistanceY", 34, 3, 28, 3, Q("2.677 mm")))
sketch4.addConstraint(Sketcher.Constraint("DistanceX", 35, 3, 34, 3, Q("4.766 mm")))
sketch4.addConstraint(Sketcher.Constraint("DistanceX", -1, 1, 0, 3, Q("52.0695 mm")))
sketch4.addConstraint(Sketcher.Constraint("DistanceX", -1, 1, 2, 3, Q("48.4612 mm")))
sketch4.addConstraint(Sketcher.Constraint("DistanceY", -1, 1, 23, 3, Q("56.8397 mm")))
sketch4.addConstraint(Sketcher.Constraint("DistanceX", -1, 1, 27, 3, Q("149.4793 mm")))
sketch4.addConstraint(Sketcher.Constraint("DistanceY", -1, 1, 28, 3, Q("56.8385 mm")))
sketch4.addConstraint(Sketcher.Constraint("DistanceY", -1, 1, 29, 3, Q("49.8283 mm")))
doc.recompute()
hole3 = body.newObject("PartDesign::Hole", "Hole002")
hole3.Profile = sketch4
hole3.ThreadType = "None"
hole3.Diameter = 4
hole3.DepthType = "Dimension"
hole3.Depth = 10
hole3.DrillPoint = "Flat"

doc.recompute()
